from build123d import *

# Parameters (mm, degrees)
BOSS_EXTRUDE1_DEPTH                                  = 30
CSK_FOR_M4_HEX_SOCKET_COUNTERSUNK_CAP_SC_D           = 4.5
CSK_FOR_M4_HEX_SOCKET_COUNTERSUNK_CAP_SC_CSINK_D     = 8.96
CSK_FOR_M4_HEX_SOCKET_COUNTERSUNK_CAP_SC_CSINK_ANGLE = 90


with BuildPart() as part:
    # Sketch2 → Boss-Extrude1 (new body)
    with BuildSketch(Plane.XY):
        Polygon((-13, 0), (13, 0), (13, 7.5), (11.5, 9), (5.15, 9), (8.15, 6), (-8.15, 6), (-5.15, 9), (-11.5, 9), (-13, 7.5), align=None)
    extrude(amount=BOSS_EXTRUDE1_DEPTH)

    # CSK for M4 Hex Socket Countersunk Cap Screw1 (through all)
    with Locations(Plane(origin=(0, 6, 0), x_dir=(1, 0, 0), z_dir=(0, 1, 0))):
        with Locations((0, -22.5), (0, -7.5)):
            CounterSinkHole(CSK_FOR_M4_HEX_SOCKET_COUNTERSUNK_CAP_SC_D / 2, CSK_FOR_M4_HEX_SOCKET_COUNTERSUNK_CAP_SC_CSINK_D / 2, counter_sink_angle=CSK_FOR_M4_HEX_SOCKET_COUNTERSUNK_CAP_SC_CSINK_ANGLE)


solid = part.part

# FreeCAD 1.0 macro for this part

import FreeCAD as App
import Part
import Sketcher
Q = App.Units.Quantity

doc = App.newDocument("Part")
body = doc.addObject("PartDesign::Body", "Body")

# Sketch on XY plane
sketch1 = body.newObject("Sketcher::SketchObject", "Sketch")
sketch1.AttachmentSupport = (doc.getObject("XY_Plane"), [""])
sketch1.MapMode = "FlatFace"
sketch1.addGeometry(Part.LineSegment(App.Vector(-13, 0, 0), App.Vector(13, 0, 0)), False)
sketch1.addGeometry(Part.LineSegment(App.Vector(13, 0, 0), App.Vector(13, 7.5, 0)), False)
sketch1.addGeometry(Part.LineSegment(App.Vector(13, 7.5, 0), App.Vector(11.5, 9, 0)), False)
sketch1.addGeometry(Part.LineSegment(App.Vector(11.5, 9, 0), App.Vector(5.2, 9, 0)), False)
sketch1.addGeometry(Part.LineSegment(App.Vector(5.2, 9, 0), App.Vector(8.2, 6, 0)), False)
sketch1.addGeometry(Part.LineSegment(App.Vector(8.2, 6, 0), App.Vector(-8.2, 6, 0)), False)
sketch1.addGeometry(Part.LineSegment(App.Vector(-8.2, 6, 0), App.Vector(-5.2, 9, 0)), False)
sketch1.addGeometry(Part.LineSegment(App.Vector(-5.2, 9, 0), App.Vector(-11.5, 9, 0)), False)
sketch1.addGeometry(Part.LineSegment(App.Vector(-11.5, 9, 0), App.Vector(-13, 7.5, 0)), False)
sketch1.addGeometry(Part.LineSegment(App.Vector(-13, 7.5, 0), App.Vector(-13, 0, 0)), False)
sketch1.addConstraint(Sketcher.Constraint("Coincident", 0, 2, 1, 1))
sketch1.addConstraint(Sketcher.Constraint("Coincident", 1, 2, 2, 1))
sketch1.addConstraint(Sketcher.Constraint("Coincident", 2, 2, 3, 1))
sketch1.addConstraint(Sketcher.Constraint("Coincident", 3, 2, 4, 1))
sketch1.addConstraint(Sketcher.Constraint("Coincident", 4, 2, 5, 1))
sketch1.addConstraint(Sketcher.Constraint("Coincident", 5, 2, 6, 1))
sketch1.addConstraint(Sketcher.Constraint("Coincident", 6, 2, 7, 1))
sketch1.addConstraint(Sketcher.Constraint("Coincident", 7, 2, 8, 1))
sketch1.addConstraint(Sketcher.Constraint("Coincident", 8, 2, 9, 1))
sketch1.addConstraint(Sketcher.Constraint("Coincident", 9, 2, 0, 1))
sketch1.addConstraint(Sketcher.Constraint("Horizontal", 0))
sketch1.addConstraint(Sketcher.Constraint("Vertical", 1))
sketch1.addConstraint(Sketcher.Constraint("Horizontal", 3))
sketch1.addConstraint(Sketcher.Constraint("Horizontal", 5))
sketch1.addConstraint(Sketcher.Constraint("Horizontal", 7))
sketch1.addConstraint(Sketcher.Constraint("Vertical", 9))
sketch1.addConstraint(Sketcher.Constraint("Symmetric", 0, 2, 9, 2, -1, 1))
sketch1.addConstraint(Sketcher.Constraint("Symmetric", 3, 2, 6, 2, -2))
sketch1.addConstraint(Sketcher.Constraint("Parallel", 2, 4))
sketch1.addConstraint(Sketcher.Constraint("Perpendicular", 4, 6))
sketch1.addConstraint(Sketcher.Constraint("Parallel", 6, 8))
sketch1.addConstraint(Sketcher.Constraint("Horizontal", 1, 2, 8, 2))
sketch1.addConstraint(Sketcher.Constraint("Equal", 3, 7))
sketch1.addConstraint(Sketcher.Constraint("DistanceX", 0, 1, 0, 2, Q("26 mm")))
sketch1.addConstraint(Sketcher.Constraint("DistanceX", 5, 2, 5, 1, Q("16.3 mm")))
sketch1.addConstraint(Sketcher.Constraint("DistanceY", 1, 1, 1, 2, Q("7.5 mm")))
sketch1.addConstraint(Sketcher.Constraint("DistanceY", -1, 1, 2, 2, Q("9 mm")))
sketch1.addConstraint(Sketcher.Constraint("DistanceY", -1, 1, 4, 2, Q("6 mm")))
pad1 = body.newObject("PartDesign::Pad", "Pad")
pad1.Profile = sketch1
pad1.Length = 30

# Sketch on XZ plane
sketch2 = body.newObject("Sketcher::SketchObject", "Sketch001")
sketch2.AttachmentSupport = (doc.getObject("XZ_Plane"), [""])
sketch2.MapMode = "FlatFace"
sketch2.AttachmentOffset = App.Placement(App.Vector(0, 0, -6), App.Rotation())
sketch2.addGeometry(Part.Circle(App.Vector(0, 22.5, 0), App.Vector(0, 0, 1), 2.2), False)
sketch2.addGeometry(Part.Circle(App.Vector(0, 7.5, 0), App.Vector(0, 0, 1), 2.2), False)
sketch2.addConstraint(Sketcher.Constraint("Equal", 0, 1))
sketch2.addConstraint(Sketcher.Constraint("PointOnObject", 0, 3, -2))
sketch2.addConstraint(Sketcher.Constraint("PointOnObject", 1, 3, -2))
sketch2.addConstraint(Sketcher.Constraint("Diameter", 0, Q("4.5 mm")))
sketch2.addConstraint(Sketcher.Constraint("DistanceY", 1, 3, 0, 3, Q("15 mm")))
sketch2.addConstraint(Sketcher.Constraint("DistanceY", -1, 1, 0, 3, Q("22.5 mm")))
doc.recompute()
hole = body.newObject("PartDesign::Hole", "Hole")
hole.Profile = sketch2
hole.ThreadType = "None"
hole.Diameter = 4.5
hole.DepthType = "ThroughAll"
hole.HoleCutType = "Countersink"
hole.HoleCutDiameter = 8.96
hole.HoleCutCountersinkAngle = 90
hole.Reversed = True

doc.recompute()
